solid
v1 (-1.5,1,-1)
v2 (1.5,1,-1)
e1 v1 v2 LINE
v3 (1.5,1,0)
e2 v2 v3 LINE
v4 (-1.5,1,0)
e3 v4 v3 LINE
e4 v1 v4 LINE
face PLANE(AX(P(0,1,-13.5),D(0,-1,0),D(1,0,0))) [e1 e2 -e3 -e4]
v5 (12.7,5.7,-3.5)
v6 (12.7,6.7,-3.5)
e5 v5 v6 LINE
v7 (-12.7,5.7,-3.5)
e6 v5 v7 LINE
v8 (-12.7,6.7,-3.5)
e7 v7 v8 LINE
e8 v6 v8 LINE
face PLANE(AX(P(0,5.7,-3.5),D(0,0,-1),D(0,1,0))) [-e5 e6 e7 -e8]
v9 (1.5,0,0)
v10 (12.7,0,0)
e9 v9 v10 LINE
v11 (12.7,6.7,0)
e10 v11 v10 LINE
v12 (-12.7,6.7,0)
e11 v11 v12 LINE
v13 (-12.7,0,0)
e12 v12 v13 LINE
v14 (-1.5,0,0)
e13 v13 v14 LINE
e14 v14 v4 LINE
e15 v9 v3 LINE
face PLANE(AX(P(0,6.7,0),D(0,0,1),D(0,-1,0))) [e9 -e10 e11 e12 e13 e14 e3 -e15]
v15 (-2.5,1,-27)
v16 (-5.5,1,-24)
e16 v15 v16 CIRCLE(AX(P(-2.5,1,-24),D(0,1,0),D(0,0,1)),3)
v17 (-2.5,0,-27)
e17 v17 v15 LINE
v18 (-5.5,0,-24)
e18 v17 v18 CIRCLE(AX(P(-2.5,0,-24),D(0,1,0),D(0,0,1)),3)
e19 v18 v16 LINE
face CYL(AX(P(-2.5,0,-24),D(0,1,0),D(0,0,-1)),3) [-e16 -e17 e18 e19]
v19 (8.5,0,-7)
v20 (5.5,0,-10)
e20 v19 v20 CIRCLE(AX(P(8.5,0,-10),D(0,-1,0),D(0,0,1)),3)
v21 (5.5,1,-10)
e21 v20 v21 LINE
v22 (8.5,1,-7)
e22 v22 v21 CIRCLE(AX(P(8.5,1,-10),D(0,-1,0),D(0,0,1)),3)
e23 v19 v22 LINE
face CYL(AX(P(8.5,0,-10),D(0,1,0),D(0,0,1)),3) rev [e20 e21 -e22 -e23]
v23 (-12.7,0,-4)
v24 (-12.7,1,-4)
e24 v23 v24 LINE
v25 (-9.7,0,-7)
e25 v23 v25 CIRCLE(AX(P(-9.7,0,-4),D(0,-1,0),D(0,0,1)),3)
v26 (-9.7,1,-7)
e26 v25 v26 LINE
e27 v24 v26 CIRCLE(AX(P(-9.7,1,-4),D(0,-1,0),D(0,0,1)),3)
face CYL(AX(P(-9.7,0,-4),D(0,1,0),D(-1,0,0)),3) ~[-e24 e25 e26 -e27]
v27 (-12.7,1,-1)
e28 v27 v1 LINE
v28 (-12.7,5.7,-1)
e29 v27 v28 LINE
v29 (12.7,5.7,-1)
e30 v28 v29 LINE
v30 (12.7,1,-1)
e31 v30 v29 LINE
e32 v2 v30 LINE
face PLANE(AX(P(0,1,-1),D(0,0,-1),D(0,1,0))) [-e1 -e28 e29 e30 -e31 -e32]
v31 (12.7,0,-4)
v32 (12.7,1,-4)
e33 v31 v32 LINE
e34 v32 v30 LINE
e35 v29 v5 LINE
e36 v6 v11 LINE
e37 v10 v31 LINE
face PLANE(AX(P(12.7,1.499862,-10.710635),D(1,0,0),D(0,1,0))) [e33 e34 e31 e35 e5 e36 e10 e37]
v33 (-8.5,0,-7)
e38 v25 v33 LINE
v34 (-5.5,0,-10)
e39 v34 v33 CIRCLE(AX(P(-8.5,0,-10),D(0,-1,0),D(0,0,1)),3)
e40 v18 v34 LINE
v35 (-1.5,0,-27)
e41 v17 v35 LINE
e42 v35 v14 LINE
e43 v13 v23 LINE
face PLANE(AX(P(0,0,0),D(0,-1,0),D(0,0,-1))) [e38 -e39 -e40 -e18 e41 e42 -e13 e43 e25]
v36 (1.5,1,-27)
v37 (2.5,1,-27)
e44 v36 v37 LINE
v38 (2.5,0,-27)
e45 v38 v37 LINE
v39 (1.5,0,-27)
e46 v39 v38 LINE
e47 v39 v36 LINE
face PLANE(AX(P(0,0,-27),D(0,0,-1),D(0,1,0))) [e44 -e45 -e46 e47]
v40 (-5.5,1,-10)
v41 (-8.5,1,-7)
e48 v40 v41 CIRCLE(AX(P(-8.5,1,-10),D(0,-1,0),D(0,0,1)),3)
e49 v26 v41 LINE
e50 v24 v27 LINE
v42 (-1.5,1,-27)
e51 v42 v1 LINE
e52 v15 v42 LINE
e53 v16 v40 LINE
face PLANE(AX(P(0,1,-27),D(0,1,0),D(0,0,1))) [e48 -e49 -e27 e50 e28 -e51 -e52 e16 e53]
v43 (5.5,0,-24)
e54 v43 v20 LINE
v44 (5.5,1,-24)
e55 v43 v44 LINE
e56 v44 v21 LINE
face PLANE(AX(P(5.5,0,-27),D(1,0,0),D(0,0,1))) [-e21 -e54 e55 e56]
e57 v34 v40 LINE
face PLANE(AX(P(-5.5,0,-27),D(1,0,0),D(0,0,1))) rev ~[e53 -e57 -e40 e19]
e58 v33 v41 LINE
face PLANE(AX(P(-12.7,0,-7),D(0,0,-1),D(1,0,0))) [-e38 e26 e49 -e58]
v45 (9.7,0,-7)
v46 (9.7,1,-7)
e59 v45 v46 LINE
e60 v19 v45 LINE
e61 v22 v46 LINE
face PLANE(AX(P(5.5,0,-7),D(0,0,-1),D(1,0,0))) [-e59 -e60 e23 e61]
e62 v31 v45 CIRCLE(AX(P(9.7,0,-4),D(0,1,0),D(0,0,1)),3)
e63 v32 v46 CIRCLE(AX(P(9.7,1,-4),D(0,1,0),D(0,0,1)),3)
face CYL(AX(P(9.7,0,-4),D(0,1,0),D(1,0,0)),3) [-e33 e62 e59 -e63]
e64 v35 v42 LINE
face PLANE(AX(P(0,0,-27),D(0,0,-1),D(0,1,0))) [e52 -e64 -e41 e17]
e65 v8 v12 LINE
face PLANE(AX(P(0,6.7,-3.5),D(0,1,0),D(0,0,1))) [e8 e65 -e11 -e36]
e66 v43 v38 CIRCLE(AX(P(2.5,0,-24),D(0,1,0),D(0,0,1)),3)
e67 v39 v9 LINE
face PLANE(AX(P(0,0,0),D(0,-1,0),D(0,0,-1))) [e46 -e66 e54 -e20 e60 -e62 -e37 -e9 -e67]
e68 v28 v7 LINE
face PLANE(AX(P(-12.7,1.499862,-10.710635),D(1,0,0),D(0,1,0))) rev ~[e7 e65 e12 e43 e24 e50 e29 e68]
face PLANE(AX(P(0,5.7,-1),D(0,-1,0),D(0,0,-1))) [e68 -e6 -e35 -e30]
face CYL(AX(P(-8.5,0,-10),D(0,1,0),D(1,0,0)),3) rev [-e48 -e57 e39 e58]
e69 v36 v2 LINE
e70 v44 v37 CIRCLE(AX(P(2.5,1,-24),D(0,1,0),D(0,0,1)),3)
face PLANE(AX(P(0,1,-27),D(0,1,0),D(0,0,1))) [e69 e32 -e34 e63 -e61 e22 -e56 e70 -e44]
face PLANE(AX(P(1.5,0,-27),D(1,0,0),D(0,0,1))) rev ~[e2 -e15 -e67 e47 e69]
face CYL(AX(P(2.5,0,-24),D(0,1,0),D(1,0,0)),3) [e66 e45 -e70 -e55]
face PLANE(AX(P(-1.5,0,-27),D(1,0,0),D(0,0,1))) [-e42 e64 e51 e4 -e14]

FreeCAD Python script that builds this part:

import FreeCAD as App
import Part
import Sketcher

V = App.Vector


def edges_at(feature, points):
    """Names of the edges that pass closest to the given points."""
    edges = feature.Shape.Edges
    near = lambda p: min(range(len(edges)), key=lambda i: edges[i].distToShape(Part.Vertex(*p))[0])
    return sorted({f"Edge{near(p) + 1}" for p in points})


def add_polygon(sketch, points):
    """Adds a closed chain of lines whose ends are joined by coincident constraints."""
    first, n = sketch.GeometryCount, len(points)
    for a, b in zip(points, points[1:] + points[:1]):
        sketch.addGeometry(Part.LineSegment(App.Vector(*a, 0), App.Vector(*b, 0)), False)
    for i in range(n):
        sketch.addConstraint(Sketcher.Constraint("Coincident", first + i, 2, first + (i + 1) % n, 1))

doc = App.newDocument("Part")
body = doc.addObject("PartDesign::Body", "Body")

sketch1 = doc.addObject("Sketcher::SketchObject", "Sketch")
body.addObject(sketch1)
sketch1.AttachmentSupport = (doc.YZ_Plane, [""])
sketch1.MapMode = "FlatFace"
add_polygon(sketch1, [(6.7, 0), (0, 0), (0, -27), (1, -27), (1, -1), (5.7, -1), (5.7, -3.5), (6.7, -3.5)])
sketch1.addConstraint([
    Sketcher.Constraint("Horizontal", 0),
    Sketcher.Constraint("Vertical", 1),
    Sketcher.Constraint("Horizontal", 2),
    Sketcher.Constraint("Vertical", 3),
    Sketcher.Constraint("Horizontal", 4),
    Sketcher.Constraint("Vertical", 5),
    Sketcher.Constraint("Horizontal", 6),
    Sketcher.Constraint("Vertical", 7),
    Sketcher.Constraint("Coincident", 0, 2, -1, 1),
    Sketcher.Constraint("Equal", 2, 6),
    Sketcher.Constraint("DistanceX", 2, 1, 2, 2, 1.0),
    Sketcher.Constraint("DistanceY", 1, 2, 1, 1, 27.0),
    Sketcher.Constraint("DistanceY", 3, 1, 3, 2, 26.0),
    Sketcher.Constraint("DistanceX", 0, 2, 0, 1, 6.7),
    Sketcher.Constraint("DistanceY", 5, 2, 5, 1, 2.5),
])
pad1 = doc.addObject("PartDesign::Pad", "Pad")
body.addObject(pad1)
pad1.Profile = sketch1
pad1.Length = 25.4
pad1.Midplane = True

sketch2 = doc.addObject("Sketcher::SketchObject", "Sketch001")
body.addObject(sketch2)
sketch2.AttachmentSupport = (doc.XZ_Plane, [""])
sketch2.MapMode = "FlatFace"
add_polygon(sketch2, [(-1.5, 0), (-1.5, -27), (1.5, -27), (1.5, 0)])
add_polygon(sketch2, [(-12.7, -7), (-12.7, -27), (-5.5, -27), (-5.5, -7)])
add_polygon(sketch2, [(5.5, -7), (5.5, -27), (12.7, -27), (12.7, -7)])
sketch2.addConstraint([
    Sketcher.Constraint("Vertical", 0),
    Sketcher.Constraint("Horizontal", 1),
    Sketcher.Constraint("Vertical", 2),
    Sketcher.Constraint("Horizontal", 3),
    Sketcher.Constraint("Vertical", 4),
    Sketcher.Constraint("Horizontal", 5),
    Sketcher.Constraint("Vertical", 6),
    Sketcher.Constraint("Horizontal", 7),
    Sketcher.Constraint("Vertical", 8),
    Sketcher.Constraint("Horizontal", 9),
    Sketcher.Constraint("Vertical", 10),
    Sketcher.Constraint("Horizontal", 11),
    Sketcher.Constraint("Symmetric", 2, 2, 3, 2, -1, 1),
    Sketcher.Constraint("Symmetric", 5, 2, 8, 2, -2),
    Sketcher.Constraint("Symmetric", 7, 2, 10, 2, -2),
    Sketcher.Constraint("Horizontal", 1, 2, 4, 2),
    Sketcher.Constraint("DistanceX", 1, 1, 1, 2, 3.0),
    Sketcher.Constraint("DistanceY", 0, 2, 0, 1, 27.0),
    Sketcher.Constraint("DistanceY", 4, 2, 4, 1, 20.0),
    Sketcher.Constraint("DistanceX", 5, 1, 5, 2, 7.2),
    Sketcher.Constraint("DistanceX", 5, 2, 0, 2, 4.0),
])
pocket1 = doc.addObject("PartDesign::Pocket", "Pocket")
body.addObject(pocket1)
pocket1.Profile = sketch2
pocket1.Length = 1
doc.recompute()

fillet = doc.addObject("PartDesign::Fillet", "Fillet")
body.addObject(fillet)
fillet.Base = (pocket1, edges_at(pocket1, [
    (5.5, 0.5, -27),
    (-5.5, 0.5, -27),
    (-5.5, 0.5, -7),
    (-12.7, 0.5, -7),
    (5.5, 0.5, -7),
    (12.7, 0.5, -7),
]))
fillet.Radius = 3

doc.recompute()
